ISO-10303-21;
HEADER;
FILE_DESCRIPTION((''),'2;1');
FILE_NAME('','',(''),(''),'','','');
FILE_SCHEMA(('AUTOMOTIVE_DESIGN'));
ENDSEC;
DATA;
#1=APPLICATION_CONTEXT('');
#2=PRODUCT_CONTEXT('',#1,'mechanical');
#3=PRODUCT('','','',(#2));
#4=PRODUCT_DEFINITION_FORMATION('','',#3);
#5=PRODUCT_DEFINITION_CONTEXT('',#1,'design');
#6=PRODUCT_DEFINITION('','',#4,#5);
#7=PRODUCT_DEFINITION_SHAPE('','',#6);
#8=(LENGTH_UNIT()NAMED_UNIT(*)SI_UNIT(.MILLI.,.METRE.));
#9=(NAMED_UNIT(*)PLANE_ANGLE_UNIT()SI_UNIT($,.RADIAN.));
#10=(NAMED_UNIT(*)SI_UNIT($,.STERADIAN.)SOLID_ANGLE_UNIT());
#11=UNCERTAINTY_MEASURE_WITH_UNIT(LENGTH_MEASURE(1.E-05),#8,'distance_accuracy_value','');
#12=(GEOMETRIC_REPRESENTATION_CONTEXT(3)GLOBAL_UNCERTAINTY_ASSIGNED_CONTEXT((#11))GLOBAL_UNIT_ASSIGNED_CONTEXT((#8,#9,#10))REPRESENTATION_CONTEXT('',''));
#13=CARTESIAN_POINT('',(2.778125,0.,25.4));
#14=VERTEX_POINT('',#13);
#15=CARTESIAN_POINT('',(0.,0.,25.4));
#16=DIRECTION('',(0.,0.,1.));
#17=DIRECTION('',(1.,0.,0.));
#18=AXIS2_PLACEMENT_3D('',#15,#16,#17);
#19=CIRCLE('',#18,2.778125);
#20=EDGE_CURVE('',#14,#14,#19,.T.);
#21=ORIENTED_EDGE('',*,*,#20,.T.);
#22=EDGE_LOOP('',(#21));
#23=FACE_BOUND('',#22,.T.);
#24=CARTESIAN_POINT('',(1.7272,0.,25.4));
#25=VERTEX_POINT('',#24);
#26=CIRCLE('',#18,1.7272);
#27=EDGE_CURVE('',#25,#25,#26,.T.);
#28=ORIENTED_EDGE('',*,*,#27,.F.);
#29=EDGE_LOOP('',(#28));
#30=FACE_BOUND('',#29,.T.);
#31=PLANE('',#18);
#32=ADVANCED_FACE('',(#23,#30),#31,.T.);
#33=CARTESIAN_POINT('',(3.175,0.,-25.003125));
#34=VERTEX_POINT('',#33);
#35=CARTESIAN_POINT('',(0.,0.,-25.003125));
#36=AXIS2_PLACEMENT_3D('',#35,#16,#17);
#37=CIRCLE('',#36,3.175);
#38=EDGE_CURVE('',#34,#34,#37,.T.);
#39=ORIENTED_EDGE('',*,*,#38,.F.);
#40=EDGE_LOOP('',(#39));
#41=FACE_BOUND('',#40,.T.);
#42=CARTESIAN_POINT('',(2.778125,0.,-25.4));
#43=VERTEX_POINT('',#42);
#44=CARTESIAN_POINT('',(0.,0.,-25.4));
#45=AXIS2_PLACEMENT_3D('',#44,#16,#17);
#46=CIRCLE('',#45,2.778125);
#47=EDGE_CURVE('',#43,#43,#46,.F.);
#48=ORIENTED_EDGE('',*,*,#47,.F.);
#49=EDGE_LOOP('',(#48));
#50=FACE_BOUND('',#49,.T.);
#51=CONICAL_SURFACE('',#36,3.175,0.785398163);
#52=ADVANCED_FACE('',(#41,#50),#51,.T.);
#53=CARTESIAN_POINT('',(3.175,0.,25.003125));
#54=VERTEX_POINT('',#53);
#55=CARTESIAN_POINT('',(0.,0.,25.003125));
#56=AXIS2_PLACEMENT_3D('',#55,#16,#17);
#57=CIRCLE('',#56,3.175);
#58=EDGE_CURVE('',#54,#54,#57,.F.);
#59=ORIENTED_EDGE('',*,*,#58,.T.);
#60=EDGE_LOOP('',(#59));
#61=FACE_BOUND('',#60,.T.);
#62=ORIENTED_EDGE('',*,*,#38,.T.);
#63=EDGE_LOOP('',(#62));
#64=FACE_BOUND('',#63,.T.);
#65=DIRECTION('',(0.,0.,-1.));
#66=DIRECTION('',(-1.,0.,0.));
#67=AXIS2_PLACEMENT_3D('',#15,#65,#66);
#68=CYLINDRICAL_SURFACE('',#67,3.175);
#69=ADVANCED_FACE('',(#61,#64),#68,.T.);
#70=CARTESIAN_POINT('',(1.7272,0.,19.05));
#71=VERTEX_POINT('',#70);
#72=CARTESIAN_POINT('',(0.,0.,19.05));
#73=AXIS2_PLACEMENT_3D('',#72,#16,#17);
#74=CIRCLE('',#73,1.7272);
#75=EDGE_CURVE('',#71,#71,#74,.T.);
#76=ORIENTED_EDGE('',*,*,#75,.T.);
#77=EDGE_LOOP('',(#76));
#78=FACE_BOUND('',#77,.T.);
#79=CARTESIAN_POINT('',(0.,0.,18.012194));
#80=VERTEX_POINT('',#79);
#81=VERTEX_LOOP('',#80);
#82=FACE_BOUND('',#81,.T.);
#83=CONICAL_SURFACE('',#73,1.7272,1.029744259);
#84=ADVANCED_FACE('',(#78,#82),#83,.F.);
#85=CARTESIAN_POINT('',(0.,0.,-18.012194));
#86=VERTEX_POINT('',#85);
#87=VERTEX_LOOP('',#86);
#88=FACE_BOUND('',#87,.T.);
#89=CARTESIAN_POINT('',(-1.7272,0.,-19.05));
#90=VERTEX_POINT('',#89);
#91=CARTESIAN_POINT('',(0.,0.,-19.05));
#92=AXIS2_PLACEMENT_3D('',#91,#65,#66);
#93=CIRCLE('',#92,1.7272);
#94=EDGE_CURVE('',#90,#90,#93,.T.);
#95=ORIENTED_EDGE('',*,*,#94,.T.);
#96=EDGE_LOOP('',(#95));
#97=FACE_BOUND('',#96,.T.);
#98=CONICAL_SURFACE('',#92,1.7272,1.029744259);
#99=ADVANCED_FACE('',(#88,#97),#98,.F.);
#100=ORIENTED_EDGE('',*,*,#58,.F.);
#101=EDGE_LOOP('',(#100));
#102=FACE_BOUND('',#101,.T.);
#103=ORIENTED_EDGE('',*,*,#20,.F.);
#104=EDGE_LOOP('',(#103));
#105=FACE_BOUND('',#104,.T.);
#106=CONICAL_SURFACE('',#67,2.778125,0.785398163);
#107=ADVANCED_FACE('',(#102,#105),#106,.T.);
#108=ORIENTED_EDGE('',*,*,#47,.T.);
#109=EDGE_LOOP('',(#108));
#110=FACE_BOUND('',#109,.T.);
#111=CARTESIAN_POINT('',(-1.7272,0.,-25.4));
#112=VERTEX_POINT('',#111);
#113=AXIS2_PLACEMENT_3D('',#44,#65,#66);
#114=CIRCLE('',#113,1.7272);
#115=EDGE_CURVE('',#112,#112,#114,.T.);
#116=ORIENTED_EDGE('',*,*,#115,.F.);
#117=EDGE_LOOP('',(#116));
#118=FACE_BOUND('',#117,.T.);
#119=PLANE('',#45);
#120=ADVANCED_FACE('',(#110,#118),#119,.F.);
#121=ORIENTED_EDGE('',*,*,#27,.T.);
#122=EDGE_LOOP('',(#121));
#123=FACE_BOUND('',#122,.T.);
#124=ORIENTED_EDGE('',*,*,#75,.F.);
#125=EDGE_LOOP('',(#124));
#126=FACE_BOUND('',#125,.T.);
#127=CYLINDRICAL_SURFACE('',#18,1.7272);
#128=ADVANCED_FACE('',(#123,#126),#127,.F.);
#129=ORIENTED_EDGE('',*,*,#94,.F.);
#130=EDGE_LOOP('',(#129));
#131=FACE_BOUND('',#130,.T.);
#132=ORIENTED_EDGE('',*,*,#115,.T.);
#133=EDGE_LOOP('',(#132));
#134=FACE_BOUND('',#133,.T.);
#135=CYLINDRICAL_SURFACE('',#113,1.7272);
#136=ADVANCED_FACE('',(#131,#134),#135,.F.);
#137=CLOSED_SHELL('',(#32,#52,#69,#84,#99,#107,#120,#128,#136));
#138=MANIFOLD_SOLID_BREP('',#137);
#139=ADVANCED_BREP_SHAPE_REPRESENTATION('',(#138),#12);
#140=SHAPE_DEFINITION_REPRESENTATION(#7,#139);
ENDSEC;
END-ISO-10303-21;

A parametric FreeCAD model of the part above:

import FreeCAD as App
import Part
import Sketcher

V = App.Vector
Q = App.Units.Quantity


def edges_at(feature, points):
    """Names of the edges that pass closest to the given points."""
    edges = feature.Shape.Edges
    near = lambda p: min(range(len(edges)), key=lambda i: edges[i].distToShape(Part.Vertex(*p))[0])
    return sorted({f"Edge{near(p) + 1}" for p in points})

doc = App.newDocument("Part")
body = doc.addObject("PartDesign::Body", "Body")

sketch1 = body.newObject("Sketcher::SketchObject", "Sketch")
sketch1.AttachmentSupport = (doc.getObject("XY_Plane"), [""])
sketch1.MapMode = "FlatFace"
sketch1.addGeometry(Part.Circle(V(0, 0, 0), V(0, 0, 1), 3.2), False)
sketch1.addConstraint(Sketcher.Constraint("Coincident", 0, 3, -1, 1))
sketch1.addConstraint(Sketcher.Constraint("Diameter", 0, Q("0.25 in")))
pad1 = body.newObject("PartDesign::Pad", "Pad")
pad1.Profile = sketch1
pad1.Length = Q("2 in")
pad1.Midplane = True

sketch2 = body.newObject("Sketcher::SketchObject", "Sketch001")
sketch2.AttachmentSupport = (doc.getObject("XY_Plane"), [""])
sketch2.MapMode = "FlatFace"
sketch2.AttachmentOffset = App.Placement(V(0, 0, 1 * 25.4), App.Rotation())
sketch2.addGeometry(Part.Circle(V(0, 0, 0), V(0, 0, 1), 1.7), False)
sketch2.addConstraint(Sketcher.Constraint("Coincident", 0, 3, -1, 1))
sketch2.addConstraint(Sketcher.Constraint("Diameter", 0, Q("0.136 in")))
doc.recompute()
hole = body.newObject("PartDesign::Hole", "Hole")
hole.Profile = sketch2
hole.ThreadType = "None"
hole.Diameter = Q("0.136 in")
hole.DepthType = "Dimension"
hole.Depth = Q("0.25 in")
hole.DrillPoint = "Angled"
hole.DrillPointAngle = 118

sketch3 = body.newObject("Sketcher::SketchObject", "Sketch002")
sketch3.AttachmentSupport = (doc.getObject("XY_Plane"), [""])
sketch3.MapMode = "FlatFace"
sketch3.AttachmentOffset = App.Placement(V(0, 0, -1 * 25.4), App.Rotation())
sketch3.addGeometry(Part.Circle(V(0, 0, 0), V(0, 0, 1), 1.7), False)
sketch3.addConstraint(Sketcher.Constraint("Coincident", 0, 3, -1, 1))
sketch3.addConstraint(Sketcher.Constraint("Diameter", 0, Q("0.136 in")))
doc.recompute()
hole2 = body.newObject("PartDesign::Hole", "Hole001")
hole2.Profile = sketch3
hole2.ThreadType = "None"
hole2.Diameter = Q("0.136 in")
hole2.DepthType = "Dimension"
hole2.Depth = Q("0.25 in")
hole2.DrillPoint = "Angled"
hole2.DrillPointAngle = 118
hole2.Reversed = True
doc.recompute()

chamfer = body.newObject("PartDesign::Chamfer", "Chamfer")
chamfer.Base = (hole2, edges_at(hole2, [(-3.175, 0, -25.4), (-3.175, 0, 25.4)]))
chamfer.Size = Q("0.015625 in")

doc.recompute()
